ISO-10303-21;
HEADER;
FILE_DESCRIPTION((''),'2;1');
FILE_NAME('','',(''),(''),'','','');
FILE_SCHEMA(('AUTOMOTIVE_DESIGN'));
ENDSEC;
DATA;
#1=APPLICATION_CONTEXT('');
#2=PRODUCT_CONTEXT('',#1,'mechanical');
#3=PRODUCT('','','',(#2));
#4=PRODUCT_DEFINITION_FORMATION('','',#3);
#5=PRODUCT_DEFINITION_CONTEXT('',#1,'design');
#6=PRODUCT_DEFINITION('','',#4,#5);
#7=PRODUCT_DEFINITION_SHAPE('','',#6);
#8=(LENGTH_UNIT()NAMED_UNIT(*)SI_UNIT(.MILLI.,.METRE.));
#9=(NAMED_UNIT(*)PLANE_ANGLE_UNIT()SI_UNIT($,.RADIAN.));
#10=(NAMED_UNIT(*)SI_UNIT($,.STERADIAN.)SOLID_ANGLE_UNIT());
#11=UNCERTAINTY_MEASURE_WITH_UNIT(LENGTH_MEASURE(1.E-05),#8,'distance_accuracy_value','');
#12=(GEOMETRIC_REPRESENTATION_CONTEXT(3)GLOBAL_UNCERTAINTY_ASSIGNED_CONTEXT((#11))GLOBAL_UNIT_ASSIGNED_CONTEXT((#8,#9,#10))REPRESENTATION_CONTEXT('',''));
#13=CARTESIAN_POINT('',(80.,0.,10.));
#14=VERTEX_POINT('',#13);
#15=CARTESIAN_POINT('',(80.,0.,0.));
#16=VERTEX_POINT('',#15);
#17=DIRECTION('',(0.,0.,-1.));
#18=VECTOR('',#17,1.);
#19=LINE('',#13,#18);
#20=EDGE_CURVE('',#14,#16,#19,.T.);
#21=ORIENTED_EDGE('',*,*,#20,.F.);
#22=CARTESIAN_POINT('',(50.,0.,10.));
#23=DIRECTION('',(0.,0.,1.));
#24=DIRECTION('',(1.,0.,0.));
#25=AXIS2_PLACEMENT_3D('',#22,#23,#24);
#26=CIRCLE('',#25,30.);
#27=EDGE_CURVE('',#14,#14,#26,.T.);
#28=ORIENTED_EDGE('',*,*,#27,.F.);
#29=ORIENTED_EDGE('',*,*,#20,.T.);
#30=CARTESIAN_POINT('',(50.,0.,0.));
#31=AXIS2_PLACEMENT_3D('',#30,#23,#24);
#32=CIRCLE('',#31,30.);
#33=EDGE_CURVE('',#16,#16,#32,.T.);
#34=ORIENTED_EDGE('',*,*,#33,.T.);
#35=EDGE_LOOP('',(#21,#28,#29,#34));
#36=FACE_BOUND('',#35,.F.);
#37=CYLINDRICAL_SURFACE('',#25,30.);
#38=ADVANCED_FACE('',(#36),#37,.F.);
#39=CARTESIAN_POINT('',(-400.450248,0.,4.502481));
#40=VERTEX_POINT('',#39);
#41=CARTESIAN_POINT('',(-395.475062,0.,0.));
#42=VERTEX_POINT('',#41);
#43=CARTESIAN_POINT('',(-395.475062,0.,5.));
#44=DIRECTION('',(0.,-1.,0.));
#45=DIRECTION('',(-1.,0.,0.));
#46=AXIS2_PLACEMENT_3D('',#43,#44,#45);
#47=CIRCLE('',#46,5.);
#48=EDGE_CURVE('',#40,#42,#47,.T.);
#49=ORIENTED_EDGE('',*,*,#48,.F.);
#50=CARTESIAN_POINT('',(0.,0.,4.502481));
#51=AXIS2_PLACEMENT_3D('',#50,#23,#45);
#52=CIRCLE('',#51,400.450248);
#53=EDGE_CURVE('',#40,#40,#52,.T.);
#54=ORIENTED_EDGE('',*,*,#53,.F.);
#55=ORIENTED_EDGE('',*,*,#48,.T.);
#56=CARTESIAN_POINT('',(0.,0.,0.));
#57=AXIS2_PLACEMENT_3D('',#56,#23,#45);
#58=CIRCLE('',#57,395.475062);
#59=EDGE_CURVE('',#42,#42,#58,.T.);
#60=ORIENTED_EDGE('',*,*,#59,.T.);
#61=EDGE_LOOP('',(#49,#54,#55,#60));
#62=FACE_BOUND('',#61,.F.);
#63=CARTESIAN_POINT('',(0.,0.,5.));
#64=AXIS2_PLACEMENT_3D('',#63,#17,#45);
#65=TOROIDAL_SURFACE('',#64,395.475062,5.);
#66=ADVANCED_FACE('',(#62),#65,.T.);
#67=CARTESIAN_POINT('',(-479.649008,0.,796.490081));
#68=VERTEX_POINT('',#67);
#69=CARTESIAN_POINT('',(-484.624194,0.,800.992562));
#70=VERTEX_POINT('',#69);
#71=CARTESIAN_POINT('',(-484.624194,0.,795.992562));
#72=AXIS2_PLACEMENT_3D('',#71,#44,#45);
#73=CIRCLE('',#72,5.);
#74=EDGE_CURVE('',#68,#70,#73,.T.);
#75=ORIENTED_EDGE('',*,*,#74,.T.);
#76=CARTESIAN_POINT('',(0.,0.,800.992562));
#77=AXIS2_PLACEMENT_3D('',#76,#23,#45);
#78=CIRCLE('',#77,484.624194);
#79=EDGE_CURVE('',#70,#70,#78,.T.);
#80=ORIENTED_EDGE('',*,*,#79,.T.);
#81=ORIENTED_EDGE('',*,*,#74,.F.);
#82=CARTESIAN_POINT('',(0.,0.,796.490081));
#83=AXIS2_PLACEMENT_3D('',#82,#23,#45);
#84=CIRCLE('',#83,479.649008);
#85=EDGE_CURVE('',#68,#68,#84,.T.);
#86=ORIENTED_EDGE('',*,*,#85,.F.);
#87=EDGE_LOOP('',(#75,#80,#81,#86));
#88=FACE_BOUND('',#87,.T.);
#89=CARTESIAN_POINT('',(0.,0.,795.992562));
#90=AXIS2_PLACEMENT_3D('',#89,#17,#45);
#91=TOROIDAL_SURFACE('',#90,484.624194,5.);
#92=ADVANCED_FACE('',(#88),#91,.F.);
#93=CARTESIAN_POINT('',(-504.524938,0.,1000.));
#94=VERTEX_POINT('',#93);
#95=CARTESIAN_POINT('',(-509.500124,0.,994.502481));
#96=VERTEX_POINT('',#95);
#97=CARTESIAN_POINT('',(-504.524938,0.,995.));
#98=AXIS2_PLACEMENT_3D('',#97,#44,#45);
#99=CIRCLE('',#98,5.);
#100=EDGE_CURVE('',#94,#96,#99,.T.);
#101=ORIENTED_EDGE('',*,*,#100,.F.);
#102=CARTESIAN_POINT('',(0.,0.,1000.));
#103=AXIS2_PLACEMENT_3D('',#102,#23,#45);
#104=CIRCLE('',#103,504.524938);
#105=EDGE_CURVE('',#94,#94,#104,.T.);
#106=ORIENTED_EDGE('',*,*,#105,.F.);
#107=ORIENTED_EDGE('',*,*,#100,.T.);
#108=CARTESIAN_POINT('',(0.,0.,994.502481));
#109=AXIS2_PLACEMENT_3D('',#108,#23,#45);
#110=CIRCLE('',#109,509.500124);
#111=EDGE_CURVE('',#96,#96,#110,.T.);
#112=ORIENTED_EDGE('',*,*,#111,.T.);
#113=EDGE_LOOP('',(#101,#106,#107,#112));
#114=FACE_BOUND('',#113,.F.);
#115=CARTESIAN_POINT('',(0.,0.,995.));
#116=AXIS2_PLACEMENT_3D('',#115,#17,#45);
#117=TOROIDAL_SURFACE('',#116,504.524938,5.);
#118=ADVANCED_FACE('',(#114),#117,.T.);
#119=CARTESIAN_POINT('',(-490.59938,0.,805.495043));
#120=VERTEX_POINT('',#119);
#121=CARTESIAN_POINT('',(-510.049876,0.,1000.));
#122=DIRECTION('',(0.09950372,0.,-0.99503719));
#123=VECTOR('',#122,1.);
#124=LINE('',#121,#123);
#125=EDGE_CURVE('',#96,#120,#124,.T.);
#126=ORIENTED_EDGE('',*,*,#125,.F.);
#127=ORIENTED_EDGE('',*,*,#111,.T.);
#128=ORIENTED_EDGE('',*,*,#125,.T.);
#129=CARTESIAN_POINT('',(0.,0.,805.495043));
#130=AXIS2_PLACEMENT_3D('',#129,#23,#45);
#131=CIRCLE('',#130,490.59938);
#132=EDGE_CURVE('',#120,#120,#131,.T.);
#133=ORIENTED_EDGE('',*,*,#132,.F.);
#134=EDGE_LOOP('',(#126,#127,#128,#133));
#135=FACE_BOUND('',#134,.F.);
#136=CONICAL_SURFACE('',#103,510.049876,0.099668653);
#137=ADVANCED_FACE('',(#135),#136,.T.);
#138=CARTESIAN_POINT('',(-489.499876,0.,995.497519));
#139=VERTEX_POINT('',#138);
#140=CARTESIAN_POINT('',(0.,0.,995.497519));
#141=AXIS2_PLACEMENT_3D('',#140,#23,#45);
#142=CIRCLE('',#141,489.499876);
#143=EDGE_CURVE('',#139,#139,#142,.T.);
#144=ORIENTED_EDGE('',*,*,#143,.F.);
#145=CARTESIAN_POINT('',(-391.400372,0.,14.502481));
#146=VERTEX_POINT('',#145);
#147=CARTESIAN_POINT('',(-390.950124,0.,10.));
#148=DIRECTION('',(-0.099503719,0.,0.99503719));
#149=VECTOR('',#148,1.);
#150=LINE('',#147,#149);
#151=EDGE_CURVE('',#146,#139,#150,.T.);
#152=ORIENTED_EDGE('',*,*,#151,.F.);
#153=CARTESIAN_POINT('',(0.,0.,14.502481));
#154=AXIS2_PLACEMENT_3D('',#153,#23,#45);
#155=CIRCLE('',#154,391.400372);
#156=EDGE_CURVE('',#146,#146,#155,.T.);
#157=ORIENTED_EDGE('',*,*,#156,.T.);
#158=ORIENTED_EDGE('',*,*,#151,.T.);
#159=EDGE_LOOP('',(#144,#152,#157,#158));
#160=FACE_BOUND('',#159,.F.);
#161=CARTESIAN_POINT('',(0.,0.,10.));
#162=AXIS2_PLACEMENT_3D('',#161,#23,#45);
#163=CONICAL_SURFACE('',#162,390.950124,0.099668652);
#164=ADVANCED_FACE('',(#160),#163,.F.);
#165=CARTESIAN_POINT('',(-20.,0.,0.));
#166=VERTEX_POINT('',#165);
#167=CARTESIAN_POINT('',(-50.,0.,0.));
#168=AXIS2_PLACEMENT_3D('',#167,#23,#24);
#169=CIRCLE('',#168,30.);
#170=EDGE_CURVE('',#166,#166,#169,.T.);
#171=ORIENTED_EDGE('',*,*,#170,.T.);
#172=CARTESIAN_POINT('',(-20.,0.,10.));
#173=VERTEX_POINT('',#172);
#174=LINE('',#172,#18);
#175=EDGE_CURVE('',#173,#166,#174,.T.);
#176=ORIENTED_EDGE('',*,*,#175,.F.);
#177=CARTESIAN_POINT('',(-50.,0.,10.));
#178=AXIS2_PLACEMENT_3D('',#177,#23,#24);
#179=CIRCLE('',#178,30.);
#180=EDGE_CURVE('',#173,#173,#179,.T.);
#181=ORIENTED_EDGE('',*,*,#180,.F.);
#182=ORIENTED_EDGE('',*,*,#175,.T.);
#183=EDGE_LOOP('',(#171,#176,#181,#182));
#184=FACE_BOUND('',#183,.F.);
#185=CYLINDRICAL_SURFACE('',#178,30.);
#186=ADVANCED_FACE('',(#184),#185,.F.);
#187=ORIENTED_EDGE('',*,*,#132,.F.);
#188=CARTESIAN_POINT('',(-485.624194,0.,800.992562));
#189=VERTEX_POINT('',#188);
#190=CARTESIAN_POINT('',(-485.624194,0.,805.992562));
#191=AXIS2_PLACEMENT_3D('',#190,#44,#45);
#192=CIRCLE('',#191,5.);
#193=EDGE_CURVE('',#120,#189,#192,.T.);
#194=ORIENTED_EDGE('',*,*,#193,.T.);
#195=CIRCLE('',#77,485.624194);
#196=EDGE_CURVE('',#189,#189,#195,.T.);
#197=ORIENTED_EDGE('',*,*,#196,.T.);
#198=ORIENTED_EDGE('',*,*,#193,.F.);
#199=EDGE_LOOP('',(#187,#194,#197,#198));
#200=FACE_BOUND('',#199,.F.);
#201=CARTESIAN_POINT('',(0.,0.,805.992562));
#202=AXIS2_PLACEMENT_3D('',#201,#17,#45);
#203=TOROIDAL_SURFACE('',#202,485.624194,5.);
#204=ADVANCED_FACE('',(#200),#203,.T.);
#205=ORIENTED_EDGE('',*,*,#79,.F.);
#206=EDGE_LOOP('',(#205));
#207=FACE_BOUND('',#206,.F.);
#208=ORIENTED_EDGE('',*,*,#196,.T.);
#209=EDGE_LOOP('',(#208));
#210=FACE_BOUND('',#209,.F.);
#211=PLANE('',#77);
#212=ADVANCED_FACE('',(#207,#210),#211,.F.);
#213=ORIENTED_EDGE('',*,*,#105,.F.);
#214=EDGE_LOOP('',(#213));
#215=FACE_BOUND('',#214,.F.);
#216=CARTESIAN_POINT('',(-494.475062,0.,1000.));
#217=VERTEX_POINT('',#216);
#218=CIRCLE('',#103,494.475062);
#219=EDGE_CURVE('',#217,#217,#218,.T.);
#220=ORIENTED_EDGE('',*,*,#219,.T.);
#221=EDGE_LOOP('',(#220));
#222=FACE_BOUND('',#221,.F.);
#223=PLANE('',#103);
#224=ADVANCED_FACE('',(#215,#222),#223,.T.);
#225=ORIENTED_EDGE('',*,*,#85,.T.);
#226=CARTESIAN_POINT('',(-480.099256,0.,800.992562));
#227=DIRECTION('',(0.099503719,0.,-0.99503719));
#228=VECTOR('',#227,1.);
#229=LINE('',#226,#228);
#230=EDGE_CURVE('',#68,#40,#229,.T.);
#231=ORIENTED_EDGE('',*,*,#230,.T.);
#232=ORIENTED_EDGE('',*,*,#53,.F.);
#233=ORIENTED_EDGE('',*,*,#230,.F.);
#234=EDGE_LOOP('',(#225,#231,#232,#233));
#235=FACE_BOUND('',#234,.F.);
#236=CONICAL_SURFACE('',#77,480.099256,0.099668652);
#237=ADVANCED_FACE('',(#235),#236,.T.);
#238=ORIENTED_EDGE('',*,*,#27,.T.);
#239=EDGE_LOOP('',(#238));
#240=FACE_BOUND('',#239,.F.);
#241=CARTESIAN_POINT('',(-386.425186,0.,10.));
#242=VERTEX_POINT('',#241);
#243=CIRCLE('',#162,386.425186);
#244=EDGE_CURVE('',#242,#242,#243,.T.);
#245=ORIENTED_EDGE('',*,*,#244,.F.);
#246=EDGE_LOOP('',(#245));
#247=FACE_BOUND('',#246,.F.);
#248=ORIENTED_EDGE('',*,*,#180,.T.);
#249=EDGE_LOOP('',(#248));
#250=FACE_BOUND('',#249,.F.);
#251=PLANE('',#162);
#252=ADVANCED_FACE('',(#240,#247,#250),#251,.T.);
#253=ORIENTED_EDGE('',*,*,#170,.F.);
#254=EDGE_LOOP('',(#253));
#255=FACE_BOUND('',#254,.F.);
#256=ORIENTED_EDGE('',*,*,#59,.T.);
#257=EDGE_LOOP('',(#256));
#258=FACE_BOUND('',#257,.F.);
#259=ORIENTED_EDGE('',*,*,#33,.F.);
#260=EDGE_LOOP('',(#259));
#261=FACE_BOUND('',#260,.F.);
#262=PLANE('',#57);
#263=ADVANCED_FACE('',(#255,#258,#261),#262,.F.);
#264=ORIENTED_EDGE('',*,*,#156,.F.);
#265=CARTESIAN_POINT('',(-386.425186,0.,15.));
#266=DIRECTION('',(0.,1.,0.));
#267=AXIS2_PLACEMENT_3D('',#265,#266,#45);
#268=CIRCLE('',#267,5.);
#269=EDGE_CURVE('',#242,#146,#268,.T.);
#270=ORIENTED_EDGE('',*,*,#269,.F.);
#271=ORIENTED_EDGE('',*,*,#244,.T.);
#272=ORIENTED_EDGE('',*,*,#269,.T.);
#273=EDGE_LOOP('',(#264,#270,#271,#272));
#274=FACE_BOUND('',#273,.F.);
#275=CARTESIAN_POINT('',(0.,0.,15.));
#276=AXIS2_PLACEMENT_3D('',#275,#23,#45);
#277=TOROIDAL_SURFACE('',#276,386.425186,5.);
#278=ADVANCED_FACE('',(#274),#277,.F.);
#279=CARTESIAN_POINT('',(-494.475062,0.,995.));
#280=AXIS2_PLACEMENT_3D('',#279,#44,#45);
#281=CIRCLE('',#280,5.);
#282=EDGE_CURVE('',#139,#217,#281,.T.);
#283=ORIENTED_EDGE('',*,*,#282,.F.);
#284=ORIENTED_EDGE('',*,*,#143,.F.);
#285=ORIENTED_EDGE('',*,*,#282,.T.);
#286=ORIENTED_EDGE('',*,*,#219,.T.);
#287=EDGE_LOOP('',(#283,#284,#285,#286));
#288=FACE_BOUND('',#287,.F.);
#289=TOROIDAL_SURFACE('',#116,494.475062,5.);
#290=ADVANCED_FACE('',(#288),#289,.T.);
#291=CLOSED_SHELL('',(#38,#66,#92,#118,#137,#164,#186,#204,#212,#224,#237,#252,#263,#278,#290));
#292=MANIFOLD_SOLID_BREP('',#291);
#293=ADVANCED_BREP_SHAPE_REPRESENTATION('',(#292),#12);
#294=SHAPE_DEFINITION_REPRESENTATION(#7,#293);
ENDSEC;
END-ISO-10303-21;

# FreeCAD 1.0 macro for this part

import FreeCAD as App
import Part
import Sketcher


def edges_at(feature, points):
    """Names of the edges that pass closest to the given points."""
    edges = feature.Shape.Edges
    near = lambda p: min(range(len(edges)), key=lambda i: edges[i].distToShape(Part.Vertex(*p))[0])
    return sorted({f"Edge{near(p) + 1}" for p in points})


def add_polygon(sketch, points):
    """Adds a closed chain of lines whose ends are joined by coincident constraints."""
    first, n = sketch.GeometryCount, len(points)
    for a, b in zip(points, points[1:] + points[:1]):
        sketch.addGeometry(Part.LineSegment(App.Vector(*a, 0), App.Vector(*b, 0)), False)
    for i in range(n):
        sketch.addConstraint(Sketcher.Constraint("Coincident", first + i, 2, first + (i + 1) % n, 1))

doc = App.newDocument("Part")
body = doc.addObject("PartDesign::Body", "Body")

# Sketch on XZ plane
sketch1 = body.newObject("Sketcher::SketchObject", "Sketch")
sketch1.AttachmentSupport = (doc.getObject("XZ_Plane"), [""])
sketch1.MapMode = "FlatFace"
add_polygon(sketch1, [(-480, 801), (-400, 0), (0, 0), (0, 10), (-391, 10), (-490, 1000), (-510, 1000), (-490, 801)])  # lines 0-7
sketch1.addConstraint([
    Sketcher.Constraint("Horizontal", 1),
    Sketcher.Constraint("Vertical", 2),
    Sketcher.Constraint("Horizontal", 3),
    Sketcher.Constraint("Horizontal", 5),
    Sketcher.Constraint("Horizontal", 7),
    Sketcher.Constraint("Coincident", 1, 2, -1, 1),
    Sketcher.Constraint("Parallel", 0, 4),
    Sketcher.Constraint("Parallel", 4, 6),
    Sketcher.Constraint("DistanceX", 1, 1, 1, 2, 400.0),
    Sketcher.Constraint("DistanceY", 2, 1, 2, 2, 10.0),
    Sketcher.Constraint("Distance", 6, 200.0),
    Sketcher.Constraint("DistanceY", -1, 1, 4, 2, 1000.0),
    Sketcher.Constraint("DistanceX", 4, 2, 3, 2, 99.0),
    Sketcher.Constraint("DistanceX", 5, 2, 5, 1, 20.099752),
    Sketcher.Constraint("DistanceX", 3, 2, 3, 1, 390.950124),
])
revolution = body.newObject("PartDesign::Revolution", "Revolution")
revolution.Profile = sketch1
revolution.ReferenceAxis = (sketch1, ["V_Axis"])
revolution.Angle = 360
doc.recompute()

fillet = body.newObject("PartDesign::Fillet", "Fillet")
fillet.Base = (revolution, edges_at(revolution, [
    (489.95, 0, 1000),
    (510.05, 0, 1000),
    (390.95, 0, 10),
    (490.149, 0, 800.993),
    (400, 0, 0),
    (480.099, 0, 800.993),
]))
fillet.Radius = 5

# Sketch on XY plane
sketch2 = body.newObject("Sketcher::SketchObject", "Sketch001")
sketch2.AttachmentSupport = (doc.getObject("XY_Plane"), [""])
sketch2.MapMode = "FlatFace"
sketch2.AttachmentOffset = App.Placement(App.Vector(0, 0, 10), App.Rotation())
sketch2.addGeometry([
    Part.Circle(App.Vector(-50, 0, 0), App.Vector(0, 0, 1), 30),
    Part.Circle(App.Vector(50, 0, 0), App.Vector(0, 0, 1), 30),
], False)
sketch2.addConstraint([
    Sketcher.Constraint("Equal", 0, 1),
    Sketcher.Constraint("Symmetric", 0, 3, 1, 3, -1, 1),
    Sketcher.Constraint("PointOnObject", 0, 3, -1),
    Sketcher.Constraint("Diameter", 0, 60.0),
    Sketcher.Constraint("DistanceX", 0, 3, -1, 1, 50.0),
])
pocket1 = body.newObject("PartDesign::Pocket", "Pocket")
pocket1.Profile = sketch2
pocket1.Type = "ThroughAll"

doc.recompute()
